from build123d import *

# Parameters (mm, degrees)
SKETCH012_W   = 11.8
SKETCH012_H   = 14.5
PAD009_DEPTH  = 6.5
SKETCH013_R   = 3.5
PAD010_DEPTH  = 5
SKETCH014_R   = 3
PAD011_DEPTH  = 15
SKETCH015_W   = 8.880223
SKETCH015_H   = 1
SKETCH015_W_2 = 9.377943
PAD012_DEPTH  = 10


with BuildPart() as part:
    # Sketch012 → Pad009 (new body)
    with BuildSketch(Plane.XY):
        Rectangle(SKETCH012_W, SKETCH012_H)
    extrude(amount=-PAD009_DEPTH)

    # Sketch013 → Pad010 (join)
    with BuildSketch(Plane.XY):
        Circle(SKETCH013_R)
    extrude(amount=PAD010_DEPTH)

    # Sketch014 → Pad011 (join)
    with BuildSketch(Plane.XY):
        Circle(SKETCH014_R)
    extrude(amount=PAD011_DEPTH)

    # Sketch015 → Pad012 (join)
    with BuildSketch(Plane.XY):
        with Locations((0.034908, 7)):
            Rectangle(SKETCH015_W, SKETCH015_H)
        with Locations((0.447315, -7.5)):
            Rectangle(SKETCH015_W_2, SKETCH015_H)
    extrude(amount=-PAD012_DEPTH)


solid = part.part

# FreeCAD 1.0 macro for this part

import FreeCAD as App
import Part
import Sketcher

V = App.Vector
Q = App.Units.Quantity

doc = App.newDocument("Part")
body = doc.addObject("PartDesign::Body", "Body")

# Sketch on XY plane
sketch1 = body.newObject("Sketcher::SketchObject", "Sketch")
sketch1.AttachmentSupport = (doc.getObject("XY_Plane"), [""])
sketch1.MapMode = "FlatFace"
sketch1.addGeometry(Part.LineSegment(V(-6, 7, 0), V(-6, -7, 0)), False)
sketch1.addGeometry(Part.LineSegment(V(-6, -7, 0), V(6, -7, 0)), False)
sketch1.addGeometry(Part.LineSegment(V(6, -7, 0), V(6, 7, 0)), False)
sketch1.addGeometry(Part.LineSegment(V(6, 7, 0), V(-6, 7, 0)), False)
sketch1.addConstraint(Sketcher.Constraint("Coincident", 0, 2, 1, 1))
sketch1.addConstraint(Sketcher.Constraint("Coincident", 1, 2, 2, 1))
sketch1.addConstraint(Sketcher.Constraint("Coincident", 2, 2, 3, 1))
sketch1.addConstraint(Sketcher.Constraint("Coincident", 3, 2, 0, 1))
sketch1.addConstraint(Sketcher.Constraint("Vertical", 0))
sketch1.addConstraint(Sketcher.Constraint("Horizontal", 1))
sketch1.addConstraint(Sketcher.Constraint("Vertical", 2))
sketch1.addConstraint(Sketcher.Constraint("Horizontal", 3))
sketch1.addConstraint(Sketcher.Constraint("Symmetric", 0, 2, 2, 2, -1, 1))
sketch1.addConstraint(Sketcher.Constraint("DistanceX", 1, 1, 1, 2, Q("11.8 mm")))
sketch1.addConstraint(Sketcher.Constraint("DistanceY", 0, 2, 0, 1, Q("14.5 mm")))
pad1 = body.newObject("PartDesign::Pad", "Pad")
pad1.Profile = sketch1
pad1.Length = 6.5
pad1.Reversed = True

# Sketch on XY plane
sketch2 = body.newObject("Sketcher::SketchObject", "Sketch001")
sketch2.AttachmentSupport = (doc.getObject("XY_Plane"), [""])
sketch2.MapMode = "FlatFace"
sketch2.addGeometry(Part.Circle(V(0, 0, 0), V(0, 0, 1), 3.5), False)
sketch2.addConstraint(Sketcher.Constraint("Coincident", 0, 3, -1, 1))
sketch2.addConstraint(Sketcher.Constraint("Diameter", 0, Q("7 mm")))
pad2 = body.newObject("PartDesign::Pad", "Pad001")
pad2.Profile = sketch2
pad2.Length = 5

# Sketch on XY plane
sketch3 = body.newObject("Sketcher::SketchObject", "Sketch002")
sketch3.AttachmentSupport = (doc.getObject("XY_Plane"), [""])
sketch3.MapMode = "FlatFace"
sketch3.addGeometry(Part.Circle(V(0, 0, 0), V(0, 0, 1), 3), False)
sketch3.addConstraint(Sketcher.Constraint("Coincident", 0, 3, -1, 1))
sketch3.addConstraint(Sketcher.Constraint("Diameter", 0, Q("6 mm")))
pad3 = body.newObject("PartDesign::Pad", "Pad002")
pad3.Profile = sketch3
pad3.Length = 15

# Sketch on XY plane
sketch4 = body.newObject("Sketcher::SketchObject", "Sketch003")
sketch4.AttachmentSupport = (doc.getObject("XY_Plane"), [""])
sketch4.MapMode = "FlatFace"
sketch4.addGeometry(Part.LineSegment(V(-4.4, 7.5, 0), V(-4.4, 6.5, 0)), False)
sketch4.addGeometry(Part.LineSegment(V(-4.4, 6.5, 0), V(4.5, 6.5, 0)), False)
sketch4.addGeometry(Part.LineSegment(V(4.5, 6.5, 0), V(4.5, 7.5, 0)), False)
sketch4.addGeometry(Part.LineSegment(V(4.5, 7.5, 0), V(-4.4, 7.5, 0)), False)
sketch4.addGeometry(Part.LineSegment(V(-4.2, -7, 0), V(-4.2, -8, 0)), False)
sketch4.addGeometry(Part.LineSegment(V(-4.2, -8, 0), V(5.1, -8, 0)), False)
sketch4.addGeometry(Part.LineSegment(V(5.1, -8, 0), V(5.1, -7, 0)), False)
sketch4.addGeometry(Part.LineSegment(V(5.1, -7, 0), V(-4.2, -7, 0)), False)
sketch4.addConstraint(Sketcher.Constraint("Coincident", 0, 2, 1, 1))
sketch4.addConstraint(Sketcher.Constraint("Coincident", 1, 2, 2, 1))
sketch4.addConstraint(Sketcher.Constraint("Coincident", 2, 2, 3, 1))
sketch4.addConstraint(Sketcher.Constraint("Coincident", 3, 2, 0, 1))
sketch4.addConstraint(Sketcher.Constraint("Coincident", 4, 2, 5, 1))
sketch4.addConstraint(Sketcher.Constraint("Coincident", 5, 2, 6, 1))
sketch4.addConstraint(Sketcher.Constraint("Coincident", 6, 2, 7, 1))
sketch4.addConstraint(Sketcher.Constraint("Coincident", 7, 2, 4, 1))
sketch4.addConstraint(Sketcher.Constraint("Vertical", 0))
sketch4.addConstraint(Sketcher.Constraint("Horizontal", 1))
sketch4.addConstraint(Sketcher.Constraint("Vertical", 2))
sketch4.addConstraint(Sketcher.Constraint("Horizontal", 3))
sketch4.addConstraint(Sketcher.Constraint("Vertical", 4))
sketch4.addConstraint(Sketcher.Constraint("Horizontal", 5))
sketch4.addConstraint(Sketcher.Constraint("Vertical", 6))
sketch4.addConstraint(Sketcher.Constraint("Horizontal", 7))
sketch4.addConstraint(Sketcher.Constraint("Equal", 2, 4))
sketch4.addConstraint(Sketcher.Constraint("DistanceY", 0, 2, 0, 1, Q("1 mm")))
sketch4.addConstraint(Sketcher.Constraint("DistanceY", 4, 2, -1, 1, Q("8 mm")))
sketch4.addConstraint(Sketcher.Constraint("DistanceY", -1, 1, 0, 2, Q("6.5 mm")))
sketch4.addConstraint(Sketcher.Constraint("DistanceX", 1, 1, 1, 2, Q("8.880223 mm")))
sketch4.addConstraint(Sketcher.Constraint("DistanceX", 5, 1, 5, 2, Q("9.377943 mm")))
sketch4.addConstraint(Sketcher.Constraint("DistanceX", -1, 1, 1, 2, Q("4.47502 mm")))
sketch4.addConstraint(Sketcher.Constraint("DistanceX", 0, 2, 5, 2, Q("9.54149 mm")))
pad4 = body.newObject("PartDesign::Pad", "Pad003")
pad4.Profile = sketch4
pad4.Length = 10
pad4.Reversed = True

doc.recompute()
